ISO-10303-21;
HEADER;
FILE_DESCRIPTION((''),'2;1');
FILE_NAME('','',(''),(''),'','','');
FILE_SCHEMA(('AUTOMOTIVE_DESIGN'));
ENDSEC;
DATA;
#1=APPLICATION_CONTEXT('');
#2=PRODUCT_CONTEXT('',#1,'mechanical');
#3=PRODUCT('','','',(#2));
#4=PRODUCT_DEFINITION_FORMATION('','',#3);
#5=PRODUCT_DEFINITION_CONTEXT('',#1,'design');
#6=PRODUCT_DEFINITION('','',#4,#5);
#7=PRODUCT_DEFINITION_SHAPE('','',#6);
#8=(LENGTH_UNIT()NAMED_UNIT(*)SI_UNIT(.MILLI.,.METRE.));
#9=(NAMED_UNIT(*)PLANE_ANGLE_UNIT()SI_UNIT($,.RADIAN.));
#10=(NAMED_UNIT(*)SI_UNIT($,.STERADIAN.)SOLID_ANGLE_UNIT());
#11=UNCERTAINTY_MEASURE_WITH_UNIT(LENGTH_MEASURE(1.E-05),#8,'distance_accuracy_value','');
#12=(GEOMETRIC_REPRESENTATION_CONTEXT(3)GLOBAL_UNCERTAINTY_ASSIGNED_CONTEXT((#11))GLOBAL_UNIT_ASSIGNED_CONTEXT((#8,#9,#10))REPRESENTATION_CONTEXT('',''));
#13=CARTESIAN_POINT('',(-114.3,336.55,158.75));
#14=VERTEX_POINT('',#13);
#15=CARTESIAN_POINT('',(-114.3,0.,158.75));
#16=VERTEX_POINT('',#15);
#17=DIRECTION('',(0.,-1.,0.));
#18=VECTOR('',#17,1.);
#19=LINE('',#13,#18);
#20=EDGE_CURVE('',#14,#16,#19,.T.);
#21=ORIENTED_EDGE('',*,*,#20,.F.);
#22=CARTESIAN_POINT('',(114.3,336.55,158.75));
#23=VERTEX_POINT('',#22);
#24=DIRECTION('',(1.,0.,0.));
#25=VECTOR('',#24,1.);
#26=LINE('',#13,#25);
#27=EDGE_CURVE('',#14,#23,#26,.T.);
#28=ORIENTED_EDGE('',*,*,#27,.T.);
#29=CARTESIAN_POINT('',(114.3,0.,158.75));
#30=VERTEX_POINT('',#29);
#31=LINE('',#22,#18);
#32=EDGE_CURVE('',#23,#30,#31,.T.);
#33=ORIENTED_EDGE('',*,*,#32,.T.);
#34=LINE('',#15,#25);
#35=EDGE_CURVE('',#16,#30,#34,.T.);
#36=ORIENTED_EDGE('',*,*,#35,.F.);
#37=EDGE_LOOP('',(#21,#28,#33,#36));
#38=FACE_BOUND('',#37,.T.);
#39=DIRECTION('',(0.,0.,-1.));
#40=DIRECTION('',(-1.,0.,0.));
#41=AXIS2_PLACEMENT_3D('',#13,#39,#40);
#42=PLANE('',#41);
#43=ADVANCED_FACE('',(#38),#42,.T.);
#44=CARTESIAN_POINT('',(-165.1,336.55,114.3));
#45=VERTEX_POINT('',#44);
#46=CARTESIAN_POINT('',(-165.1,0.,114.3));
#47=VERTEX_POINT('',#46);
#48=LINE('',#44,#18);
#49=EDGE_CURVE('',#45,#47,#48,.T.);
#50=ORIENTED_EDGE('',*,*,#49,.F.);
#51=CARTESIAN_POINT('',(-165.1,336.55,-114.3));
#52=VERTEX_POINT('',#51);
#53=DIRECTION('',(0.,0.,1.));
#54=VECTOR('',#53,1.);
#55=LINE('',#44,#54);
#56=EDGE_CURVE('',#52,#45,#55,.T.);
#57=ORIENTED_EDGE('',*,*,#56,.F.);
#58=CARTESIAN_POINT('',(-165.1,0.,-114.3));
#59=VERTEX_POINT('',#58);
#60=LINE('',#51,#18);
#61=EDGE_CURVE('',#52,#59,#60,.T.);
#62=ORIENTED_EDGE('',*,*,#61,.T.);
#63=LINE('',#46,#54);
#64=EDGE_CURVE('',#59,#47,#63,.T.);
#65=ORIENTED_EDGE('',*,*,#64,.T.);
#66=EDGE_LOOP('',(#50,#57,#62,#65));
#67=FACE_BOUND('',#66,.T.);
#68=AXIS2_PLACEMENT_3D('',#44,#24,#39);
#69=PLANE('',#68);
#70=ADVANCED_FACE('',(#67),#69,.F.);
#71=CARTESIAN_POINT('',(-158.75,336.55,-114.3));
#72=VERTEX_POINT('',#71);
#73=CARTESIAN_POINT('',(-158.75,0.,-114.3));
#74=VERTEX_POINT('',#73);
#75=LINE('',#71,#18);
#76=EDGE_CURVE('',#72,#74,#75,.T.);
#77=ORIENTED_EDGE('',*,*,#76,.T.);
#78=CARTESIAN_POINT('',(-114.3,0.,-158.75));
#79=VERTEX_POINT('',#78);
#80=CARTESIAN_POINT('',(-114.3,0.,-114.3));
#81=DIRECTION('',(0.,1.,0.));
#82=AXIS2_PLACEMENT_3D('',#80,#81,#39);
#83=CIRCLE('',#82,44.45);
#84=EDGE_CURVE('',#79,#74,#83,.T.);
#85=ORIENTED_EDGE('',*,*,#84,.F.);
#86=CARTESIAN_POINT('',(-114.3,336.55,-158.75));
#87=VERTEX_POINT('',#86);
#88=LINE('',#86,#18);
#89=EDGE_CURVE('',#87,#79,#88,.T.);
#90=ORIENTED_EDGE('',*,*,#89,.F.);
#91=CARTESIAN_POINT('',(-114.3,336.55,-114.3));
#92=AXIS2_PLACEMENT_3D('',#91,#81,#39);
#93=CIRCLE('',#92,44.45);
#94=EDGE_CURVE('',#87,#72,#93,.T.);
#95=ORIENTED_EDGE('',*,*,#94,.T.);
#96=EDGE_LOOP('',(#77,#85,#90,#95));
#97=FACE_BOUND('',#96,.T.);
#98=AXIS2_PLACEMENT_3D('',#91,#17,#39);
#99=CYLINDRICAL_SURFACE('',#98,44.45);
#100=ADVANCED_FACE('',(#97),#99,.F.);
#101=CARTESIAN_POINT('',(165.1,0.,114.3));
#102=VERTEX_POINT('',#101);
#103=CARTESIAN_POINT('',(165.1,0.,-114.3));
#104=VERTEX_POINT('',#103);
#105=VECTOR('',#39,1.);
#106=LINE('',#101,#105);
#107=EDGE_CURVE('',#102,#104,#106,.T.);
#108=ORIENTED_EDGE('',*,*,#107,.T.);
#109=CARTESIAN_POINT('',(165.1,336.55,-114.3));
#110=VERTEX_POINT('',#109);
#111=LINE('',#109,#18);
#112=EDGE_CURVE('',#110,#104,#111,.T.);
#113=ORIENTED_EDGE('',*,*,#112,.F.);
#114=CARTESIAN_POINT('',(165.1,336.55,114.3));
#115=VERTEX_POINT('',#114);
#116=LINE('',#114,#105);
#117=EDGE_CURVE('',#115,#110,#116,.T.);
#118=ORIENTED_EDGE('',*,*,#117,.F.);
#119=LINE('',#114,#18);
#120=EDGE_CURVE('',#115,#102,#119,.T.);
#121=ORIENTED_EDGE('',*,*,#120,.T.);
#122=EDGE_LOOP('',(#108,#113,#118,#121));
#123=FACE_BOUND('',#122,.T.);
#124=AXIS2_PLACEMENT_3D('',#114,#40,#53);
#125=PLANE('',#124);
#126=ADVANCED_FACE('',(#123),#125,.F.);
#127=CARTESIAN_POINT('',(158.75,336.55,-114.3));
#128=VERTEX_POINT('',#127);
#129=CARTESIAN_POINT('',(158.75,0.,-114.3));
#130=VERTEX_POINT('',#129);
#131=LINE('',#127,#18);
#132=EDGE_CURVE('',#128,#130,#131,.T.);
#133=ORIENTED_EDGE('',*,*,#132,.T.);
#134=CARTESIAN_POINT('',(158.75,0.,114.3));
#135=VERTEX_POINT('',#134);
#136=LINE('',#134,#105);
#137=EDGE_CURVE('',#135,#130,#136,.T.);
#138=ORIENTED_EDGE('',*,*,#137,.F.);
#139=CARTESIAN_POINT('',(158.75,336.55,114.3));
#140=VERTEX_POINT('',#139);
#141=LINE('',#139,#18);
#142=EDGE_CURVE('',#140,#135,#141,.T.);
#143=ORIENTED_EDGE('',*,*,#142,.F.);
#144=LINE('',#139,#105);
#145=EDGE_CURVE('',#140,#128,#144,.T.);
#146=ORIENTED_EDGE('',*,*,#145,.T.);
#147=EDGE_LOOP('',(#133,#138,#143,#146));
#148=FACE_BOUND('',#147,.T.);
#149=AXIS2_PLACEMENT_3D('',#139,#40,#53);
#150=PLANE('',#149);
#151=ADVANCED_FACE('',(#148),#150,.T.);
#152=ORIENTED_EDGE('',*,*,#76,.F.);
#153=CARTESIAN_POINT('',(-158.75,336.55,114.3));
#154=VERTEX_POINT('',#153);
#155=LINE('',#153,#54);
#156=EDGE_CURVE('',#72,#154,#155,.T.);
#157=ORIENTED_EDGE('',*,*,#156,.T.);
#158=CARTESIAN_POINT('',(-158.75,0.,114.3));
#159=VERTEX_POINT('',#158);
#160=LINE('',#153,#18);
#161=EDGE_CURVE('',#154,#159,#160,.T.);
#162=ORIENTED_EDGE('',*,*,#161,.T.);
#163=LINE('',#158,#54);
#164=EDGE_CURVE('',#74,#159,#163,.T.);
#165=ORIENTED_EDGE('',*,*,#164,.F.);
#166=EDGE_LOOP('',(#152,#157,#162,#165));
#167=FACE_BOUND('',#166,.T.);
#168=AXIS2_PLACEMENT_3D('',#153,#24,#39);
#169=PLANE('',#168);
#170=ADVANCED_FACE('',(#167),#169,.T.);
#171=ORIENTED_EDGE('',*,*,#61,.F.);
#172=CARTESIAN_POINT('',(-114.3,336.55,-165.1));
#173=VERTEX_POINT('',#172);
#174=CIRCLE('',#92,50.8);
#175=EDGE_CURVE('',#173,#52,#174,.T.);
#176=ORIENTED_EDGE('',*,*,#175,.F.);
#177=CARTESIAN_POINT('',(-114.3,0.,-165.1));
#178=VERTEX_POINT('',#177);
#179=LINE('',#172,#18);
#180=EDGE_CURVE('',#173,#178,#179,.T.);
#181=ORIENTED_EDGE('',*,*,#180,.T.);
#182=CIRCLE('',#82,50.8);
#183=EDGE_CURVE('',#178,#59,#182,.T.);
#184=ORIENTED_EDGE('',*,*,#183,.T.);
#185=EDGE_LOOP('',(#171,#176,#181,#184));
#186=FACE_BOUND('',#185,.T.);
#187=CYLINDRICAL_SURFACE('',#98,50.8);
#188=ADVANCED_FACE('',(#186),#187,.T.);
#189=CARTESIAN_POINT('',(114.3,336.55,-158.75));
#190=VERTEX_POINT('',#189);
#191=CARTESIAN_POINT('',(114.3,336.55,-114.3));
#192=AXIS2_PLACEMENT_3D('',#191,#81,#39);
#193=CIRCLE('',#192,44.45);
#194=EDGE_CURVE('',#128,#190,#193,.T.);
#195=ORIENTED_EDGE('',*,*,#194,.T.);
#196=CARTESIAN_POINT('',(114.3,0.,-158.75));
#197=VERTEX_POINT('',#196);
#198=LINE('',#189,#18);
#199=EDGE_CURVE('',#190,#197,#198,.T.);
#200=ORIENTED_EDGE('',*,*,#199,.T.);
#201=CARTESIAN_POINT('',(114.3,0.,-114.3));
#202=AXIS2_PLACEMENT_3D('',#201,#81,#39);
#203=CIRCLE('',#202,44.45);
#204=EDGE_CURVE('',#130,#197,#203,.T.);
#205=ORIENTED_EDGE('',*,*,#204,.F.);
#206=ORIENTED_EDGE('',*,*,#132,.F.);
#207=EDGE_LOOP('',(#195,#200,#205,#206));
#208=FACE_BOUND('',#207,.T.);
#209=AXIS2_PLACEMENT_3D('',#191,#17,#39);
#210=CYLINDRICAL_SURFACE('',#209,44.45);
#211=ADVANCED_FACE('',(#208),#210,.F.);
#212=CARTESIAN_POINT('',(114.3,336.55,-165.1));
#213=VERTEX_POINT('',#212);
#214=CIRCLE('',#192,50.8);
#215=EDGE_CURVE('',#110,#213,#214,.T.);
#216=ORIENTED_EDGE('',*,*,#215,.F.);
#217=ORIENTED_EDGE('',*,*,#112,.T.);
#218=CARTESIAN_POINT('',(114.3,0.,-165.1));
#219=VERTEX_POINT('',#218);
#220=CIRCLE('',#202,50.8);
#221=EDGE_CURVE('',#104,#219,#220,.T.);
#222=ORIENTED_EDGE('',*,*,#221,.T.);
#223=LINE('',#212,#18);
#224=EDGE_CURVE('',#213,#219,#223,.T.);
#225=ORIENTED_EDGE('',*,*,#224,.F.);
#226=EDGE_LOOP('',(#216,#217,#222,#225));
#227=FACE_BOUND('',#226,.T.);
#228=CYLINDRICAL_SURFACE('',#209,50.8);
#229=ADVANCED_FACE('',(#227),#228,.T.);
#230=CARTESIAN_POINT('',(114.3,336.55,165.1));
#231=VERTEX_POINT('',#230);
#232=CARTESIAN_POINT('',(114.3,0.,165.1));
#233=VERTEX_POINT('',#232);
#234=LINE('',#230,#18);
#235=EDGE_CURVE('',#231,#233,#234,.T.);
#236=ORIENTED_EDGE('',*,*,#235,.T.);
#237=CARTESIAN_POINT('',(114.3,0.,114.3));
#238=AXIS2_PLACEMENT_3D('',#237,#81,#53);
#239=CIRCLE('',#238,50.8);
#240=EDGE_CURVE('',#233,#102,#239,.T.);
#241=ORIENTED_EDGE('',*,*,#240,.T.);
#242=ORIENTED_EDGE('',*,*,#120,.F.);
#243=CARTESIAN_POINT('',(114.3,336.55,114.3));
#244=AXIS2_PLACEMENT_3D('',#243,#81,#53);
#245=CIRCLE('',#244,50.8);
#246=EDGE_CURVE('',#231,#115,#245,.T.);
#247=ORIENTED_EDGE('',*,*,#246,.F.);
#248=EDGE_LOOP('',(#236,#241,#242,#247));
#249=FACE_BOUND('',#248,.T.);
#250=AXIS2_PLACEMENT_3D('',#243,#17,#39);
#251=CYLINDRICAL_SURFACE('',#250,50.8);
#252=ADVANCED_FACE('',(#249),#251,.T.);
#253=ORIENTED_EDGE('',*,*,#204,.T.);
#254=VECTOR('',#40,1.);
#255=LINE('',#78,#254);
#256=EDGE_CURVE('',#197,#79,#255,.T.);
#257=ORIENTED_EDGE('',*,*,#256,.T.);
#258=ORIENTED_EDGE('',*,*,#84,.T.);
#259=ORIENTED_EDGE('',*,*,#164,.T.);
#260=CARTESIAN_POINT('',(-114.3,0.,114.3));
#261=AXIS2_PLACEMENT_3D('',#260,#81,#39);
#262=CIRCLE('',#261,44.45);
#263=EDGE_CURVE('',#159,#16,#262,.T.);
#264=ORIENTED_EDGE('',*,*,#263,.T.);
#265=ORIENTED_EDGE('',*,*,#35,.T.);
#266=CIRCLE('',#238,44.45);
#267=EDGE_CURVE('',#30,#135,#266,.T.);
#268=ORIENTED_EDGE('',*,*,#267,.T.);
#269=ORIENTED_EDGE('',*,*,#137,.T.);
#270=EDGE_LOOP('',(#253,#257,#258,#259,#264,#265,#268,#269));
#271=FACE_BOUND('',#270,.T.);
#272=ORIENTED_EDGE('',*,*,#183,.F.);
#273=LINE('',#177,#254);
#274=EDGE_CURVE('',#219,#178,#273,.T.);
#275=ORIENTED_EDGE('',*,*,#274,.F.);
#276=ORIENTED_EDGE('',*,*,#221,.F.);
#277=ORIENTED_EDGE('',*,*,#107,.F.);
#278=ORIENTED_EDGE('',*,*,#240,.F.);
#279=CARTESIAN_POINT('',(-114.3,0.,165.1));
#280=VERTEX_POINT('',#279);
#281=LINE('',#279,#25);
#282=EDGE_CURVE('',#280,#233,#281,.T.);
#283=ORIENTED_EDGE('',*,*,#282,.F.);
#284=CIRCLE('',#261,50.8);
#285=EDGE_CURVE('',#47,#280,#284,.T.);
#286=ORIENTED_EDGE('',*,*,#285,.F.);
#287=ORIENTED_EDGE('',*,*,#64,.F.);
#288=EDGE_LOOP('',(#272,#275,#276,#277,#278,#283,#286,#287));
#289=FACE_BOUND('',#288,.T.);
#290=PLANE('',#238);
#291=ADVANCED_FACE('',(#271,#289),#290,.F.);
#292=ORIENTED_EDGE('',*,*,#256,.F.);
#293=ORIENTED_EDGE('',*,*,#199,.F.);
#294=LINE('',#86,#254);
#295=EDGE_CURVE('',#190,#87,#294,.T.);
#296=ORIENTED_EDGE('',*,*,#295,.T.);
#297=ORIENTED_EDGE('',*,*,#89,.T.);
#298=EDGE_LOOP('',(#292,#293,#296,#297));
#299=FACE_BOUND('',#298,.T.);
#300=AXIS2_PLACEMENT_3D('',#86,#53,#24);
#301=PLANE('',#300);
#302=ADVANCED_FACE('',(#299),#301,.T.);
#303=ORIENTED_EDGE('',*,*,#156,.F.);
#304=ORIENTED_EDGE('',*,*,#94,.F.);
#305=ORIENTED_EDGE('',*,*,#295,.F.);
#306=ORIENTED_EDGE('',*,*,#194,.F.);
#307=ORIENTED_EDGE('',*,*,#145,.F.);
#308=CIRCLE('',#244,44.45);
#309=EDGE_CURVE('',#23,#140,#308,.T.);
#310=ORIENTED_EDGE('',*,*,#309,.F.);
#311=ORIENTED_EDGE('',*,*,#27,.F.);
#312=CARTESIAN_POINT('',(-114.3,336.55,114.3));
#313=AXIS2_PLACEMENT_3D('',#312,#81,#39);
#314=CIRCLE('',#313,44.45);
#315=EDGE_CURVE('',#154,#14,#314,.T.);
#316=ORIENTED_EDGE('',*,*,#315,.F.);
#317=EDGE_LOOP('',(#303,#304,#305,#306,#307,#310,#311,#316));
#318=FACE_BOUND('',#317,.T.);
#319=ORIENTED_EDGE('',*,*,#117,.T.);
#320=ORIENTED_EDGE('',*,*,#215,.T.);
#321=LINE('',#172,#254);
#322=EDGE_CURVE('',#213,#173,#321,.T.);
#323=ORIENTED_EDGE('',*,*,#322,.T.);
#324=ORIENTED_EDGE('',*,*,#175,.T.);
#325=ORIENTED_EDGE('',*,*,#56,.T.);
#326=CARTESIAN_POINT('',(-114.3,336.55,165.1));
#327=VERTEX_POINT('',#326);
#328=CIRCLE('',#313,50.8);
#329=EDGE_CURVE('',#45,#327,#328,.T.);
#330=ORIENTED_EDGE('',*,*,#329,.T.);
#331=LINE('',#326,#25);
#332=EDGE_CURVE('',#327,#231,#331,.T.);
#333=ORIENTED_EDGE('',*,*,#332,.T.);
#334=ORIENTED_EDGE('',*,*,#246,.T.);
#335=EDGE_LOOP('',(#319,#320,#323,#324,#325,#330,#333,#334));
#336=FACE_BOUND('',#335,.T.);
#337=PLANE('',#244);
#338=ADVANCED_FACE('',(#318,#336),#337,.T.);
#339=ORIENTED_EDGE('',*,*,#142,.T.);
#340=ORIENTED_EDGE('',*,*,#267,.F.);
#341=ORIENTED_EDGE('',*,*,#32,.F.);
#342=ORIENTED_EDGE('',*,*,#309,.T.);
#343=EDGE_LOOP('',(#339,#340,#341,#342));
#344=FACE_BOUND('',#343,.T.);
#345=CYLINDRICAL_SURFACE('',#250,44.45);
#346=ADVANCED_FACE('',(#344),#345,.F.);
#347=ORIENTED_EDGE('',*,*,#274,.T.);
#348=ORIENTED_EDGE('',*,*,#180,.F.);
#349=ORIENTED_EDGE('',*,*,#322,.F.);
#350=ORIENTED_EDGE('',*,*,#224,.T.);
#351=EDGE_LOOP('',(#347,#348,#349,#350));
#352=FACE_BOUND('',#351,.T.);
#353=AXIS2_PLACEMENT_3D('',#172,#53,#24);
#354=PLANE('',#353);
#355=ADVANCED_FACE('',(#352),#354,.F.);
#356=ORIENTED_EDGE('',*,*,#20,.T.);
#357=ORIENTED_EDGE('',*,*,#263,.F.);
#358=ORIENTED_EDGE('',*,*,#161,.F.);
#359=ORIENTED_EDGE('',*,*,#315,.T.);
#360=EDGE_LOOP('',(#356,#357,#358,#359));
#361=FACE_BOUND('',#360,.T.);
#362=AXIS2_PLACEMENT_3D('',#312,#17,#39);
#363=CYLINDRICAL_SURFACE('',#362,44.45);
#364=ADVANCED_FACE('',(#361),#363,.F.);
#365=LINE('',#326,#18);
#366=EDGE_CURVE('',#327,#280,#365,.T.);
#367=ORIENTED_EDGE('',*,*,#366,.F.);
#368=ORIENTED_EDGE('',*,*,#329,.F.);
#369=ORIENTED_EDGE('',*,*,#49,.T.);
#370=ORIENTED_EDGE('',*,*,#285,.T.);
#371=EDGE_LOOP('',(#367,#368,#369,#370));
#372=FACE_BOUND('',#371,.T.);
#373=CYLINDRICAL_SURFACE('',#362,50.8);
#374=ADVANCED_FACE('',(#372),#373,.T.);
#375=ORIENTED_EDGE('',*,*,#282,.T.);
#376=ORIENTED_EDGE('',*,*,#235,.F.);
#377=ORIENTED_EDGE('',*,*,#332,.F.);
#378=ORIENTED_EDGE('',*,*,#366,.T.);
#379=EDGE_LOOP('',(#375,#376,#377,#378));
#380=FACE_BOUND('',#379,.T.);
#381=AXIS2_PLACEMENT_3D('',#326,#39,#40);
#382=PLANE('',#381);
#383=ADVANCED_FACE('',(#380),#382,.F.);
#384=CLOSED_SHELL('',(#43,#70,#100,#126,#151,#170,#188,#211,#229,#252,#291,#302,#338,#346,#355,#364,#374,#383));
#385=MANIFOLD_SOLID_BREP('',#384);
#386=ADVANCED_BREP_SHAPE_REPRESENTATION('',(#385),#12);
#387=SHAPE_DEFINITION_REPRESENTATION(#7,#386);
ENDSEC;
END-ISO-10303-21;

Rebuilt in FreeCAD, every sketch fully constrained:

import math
import FreeCAD as App
import Part
import Sketcher

V = App.Vector
Q = App.Units.Quantity

doc = App.newDocument("Part")
body = doc.addObject("PartDesign::Body", "Body")

sketch1 = body.newObject("Sketcher::SketchObject", "Sketch")
sketch1.AttachmentSupport = (doc.getObject("XZ_Plane"), [""])
sketch1.MapMode = "FlatFace"
sketch1.addGeometry([
    Part.LineSegment(V(-114.3, 165.1, 0), V(114.3, 165.1, 0)),
    Part.ArcOfCircle(Part.Circle(V(114.3, 114.3, 0), V(0, 0, 1), 50.8), math.radians(0), math.radians(90)),
    Part.LineSegment(V(165.1, 114.3, 0), V(165.1, -114.3, 0)),
    Part.ArcOfCircle(Part.Circle(V(114.3, -114.3, 0), V(0, 0, 1), 50.8), math.radians(-90), math.radians(0)),
    Part.LineSegment(V(114.3, -165.1, 0), V(-114.3, -165.1, 0)),
    Part.ArcOfCircle(Part.Circle(V(-114.3, -114.3, 0), V(0, 0, 1), 50.8), math.radians(-180), math.radians(-90)),
    Part.LineSegment(V(-165.1, -114.3, 0), V(-165.1, 114.3, 0)),
    Part.ArcOfCircle(Part.Circle(V(-114.3, 114.3, 0), V(0, 0, 1), 50.8), math.radians(90), math.radians(180)),
    Part.ArcOfCircle(Part.Circle(V(-114.3, -114.3, 0), V(0, 0, 1), 44.45), math.radians(180), math.radians(270)),
    Part.LineSegment(V(-114.3, -158.75, 0), V(114.3, -158.75, 0)),
    Part.ArcOfCircle(Part.Circle(V(114.3, -114.3, 0), V(0, 0, 1), 44.45), math.radians(-90), math.radians(0)),
    Part.LineSegment(V(158.75, -114.3, 0), V(158.75, 114.3, 0)),
    Part.ArcOfCircle(Part.Circle(V(114.3, 114.3, 0), V(0, 0, 1), 44.45), math.radians(0), math.radians(90)),
    Part.LineSegment(V(114.3, 158.75, 0), V(-114.3, 158.75, 0)),
    Part.ArcOfCircle(Part.Circle(V(-114.3, 114.3, 0), V(0, 0, 1), 44.45), math.radians(90), math.radians(180)),
    Part.LineSegment(V(-158.75, 114.3, 0), V(-158.75, -114.3, 0)),
], False)
sketch1.addConstraint([
    Sketcher.Constraint("Tangent", 0, 2, 1, 2),
    Sketcher.Constraint("Tangent", 1, 1, 2, 1),
    Sketcher.Constraint("Tangent", 2, 2, 3, 2),
    Sketcher.Constraint("Tangent", 3, 1, 4, 1),
    Sketcher.Constraint("Tangent", 4, 2, 5, 2),
    Sketcher.Constraint("Tangent", 5, 1, 6, 1),
    Sketcher.Constraint("Tangent", 6, 2, 7, 2),
    Sketcher.Constraint("Tangent", 7, 1, 0, 1),
    Sketcher.Constraint("Tangent", 8, 2, 9, 1),
    Sketcher.Constraint("Tangent", 9, 2, 10, 1),
    Sketcher.Constraint("Tangent", 10, 2, 11, 1),
    Sketcher.Constraint("Tangent", 11, 2, 12, 1),
    Sketcher.Constraint("Tangent", 12, 2, 13, 1),
    Sketcher.Constraint("Tangent", 13, 2, 14, 1),
    Sketcher.Constraint("Tangent", 14, 2, 15, 1),
    Sketcher.Constraint("Tangent", 15, 2, 8, 1),
    Sketcher.Constraint("Horizontal", 0),
    Sketcher.Constraint("Vertical", 2),
    Sketcher.Constraint("Horizontal", 4),
    Sketcher.Constraint("Vertical", 6),
    Sketcher.Constraint("Horizontal", 9),
    Sketcher.Constraint("Vertical", 11),
    Sketcher.Constraint("Horizontal", 13),
    Sketcher.Constraint("Vertical", 15),
    Sketcher.Constraint("Coincident", 8, 3, 5, 3),
    Sketcher.Constraint("Coincident", 10, 3, 3, 3),
    Sketcher.Constraint("Coincident", 12, 3, 1, 3),
    Sketcher.Constraint("Equal", 1, 3),
    Sketcher.Constraint("Equal", 3, 5),
    Sketcher.Constraint("Equal", 5, 7),
    Sketcher.Constraint("Equal", 12, 14),
    Sketcher.Constraint("Symmetric", 1, 3, 5, 3, -1, 1),
    Sketcher.Constraint("Equal", 13, 2),
    Sketcher.Constraint("Radius", 1, Q("2 in")),
    Sketcher.Constraint("DistanceX", 0, 1, 0, 2, Q("9 in")),
    Sketcher.Constraint("Radius", 8, Q("1.75 in")),
])
pad1 = body.newObject("PartDesign::Pad", "Pad")
pad1.Profile = sketch1
pad1.Length = Q("13.25 in")
pad1.Reversed = True

doc.recompute()
